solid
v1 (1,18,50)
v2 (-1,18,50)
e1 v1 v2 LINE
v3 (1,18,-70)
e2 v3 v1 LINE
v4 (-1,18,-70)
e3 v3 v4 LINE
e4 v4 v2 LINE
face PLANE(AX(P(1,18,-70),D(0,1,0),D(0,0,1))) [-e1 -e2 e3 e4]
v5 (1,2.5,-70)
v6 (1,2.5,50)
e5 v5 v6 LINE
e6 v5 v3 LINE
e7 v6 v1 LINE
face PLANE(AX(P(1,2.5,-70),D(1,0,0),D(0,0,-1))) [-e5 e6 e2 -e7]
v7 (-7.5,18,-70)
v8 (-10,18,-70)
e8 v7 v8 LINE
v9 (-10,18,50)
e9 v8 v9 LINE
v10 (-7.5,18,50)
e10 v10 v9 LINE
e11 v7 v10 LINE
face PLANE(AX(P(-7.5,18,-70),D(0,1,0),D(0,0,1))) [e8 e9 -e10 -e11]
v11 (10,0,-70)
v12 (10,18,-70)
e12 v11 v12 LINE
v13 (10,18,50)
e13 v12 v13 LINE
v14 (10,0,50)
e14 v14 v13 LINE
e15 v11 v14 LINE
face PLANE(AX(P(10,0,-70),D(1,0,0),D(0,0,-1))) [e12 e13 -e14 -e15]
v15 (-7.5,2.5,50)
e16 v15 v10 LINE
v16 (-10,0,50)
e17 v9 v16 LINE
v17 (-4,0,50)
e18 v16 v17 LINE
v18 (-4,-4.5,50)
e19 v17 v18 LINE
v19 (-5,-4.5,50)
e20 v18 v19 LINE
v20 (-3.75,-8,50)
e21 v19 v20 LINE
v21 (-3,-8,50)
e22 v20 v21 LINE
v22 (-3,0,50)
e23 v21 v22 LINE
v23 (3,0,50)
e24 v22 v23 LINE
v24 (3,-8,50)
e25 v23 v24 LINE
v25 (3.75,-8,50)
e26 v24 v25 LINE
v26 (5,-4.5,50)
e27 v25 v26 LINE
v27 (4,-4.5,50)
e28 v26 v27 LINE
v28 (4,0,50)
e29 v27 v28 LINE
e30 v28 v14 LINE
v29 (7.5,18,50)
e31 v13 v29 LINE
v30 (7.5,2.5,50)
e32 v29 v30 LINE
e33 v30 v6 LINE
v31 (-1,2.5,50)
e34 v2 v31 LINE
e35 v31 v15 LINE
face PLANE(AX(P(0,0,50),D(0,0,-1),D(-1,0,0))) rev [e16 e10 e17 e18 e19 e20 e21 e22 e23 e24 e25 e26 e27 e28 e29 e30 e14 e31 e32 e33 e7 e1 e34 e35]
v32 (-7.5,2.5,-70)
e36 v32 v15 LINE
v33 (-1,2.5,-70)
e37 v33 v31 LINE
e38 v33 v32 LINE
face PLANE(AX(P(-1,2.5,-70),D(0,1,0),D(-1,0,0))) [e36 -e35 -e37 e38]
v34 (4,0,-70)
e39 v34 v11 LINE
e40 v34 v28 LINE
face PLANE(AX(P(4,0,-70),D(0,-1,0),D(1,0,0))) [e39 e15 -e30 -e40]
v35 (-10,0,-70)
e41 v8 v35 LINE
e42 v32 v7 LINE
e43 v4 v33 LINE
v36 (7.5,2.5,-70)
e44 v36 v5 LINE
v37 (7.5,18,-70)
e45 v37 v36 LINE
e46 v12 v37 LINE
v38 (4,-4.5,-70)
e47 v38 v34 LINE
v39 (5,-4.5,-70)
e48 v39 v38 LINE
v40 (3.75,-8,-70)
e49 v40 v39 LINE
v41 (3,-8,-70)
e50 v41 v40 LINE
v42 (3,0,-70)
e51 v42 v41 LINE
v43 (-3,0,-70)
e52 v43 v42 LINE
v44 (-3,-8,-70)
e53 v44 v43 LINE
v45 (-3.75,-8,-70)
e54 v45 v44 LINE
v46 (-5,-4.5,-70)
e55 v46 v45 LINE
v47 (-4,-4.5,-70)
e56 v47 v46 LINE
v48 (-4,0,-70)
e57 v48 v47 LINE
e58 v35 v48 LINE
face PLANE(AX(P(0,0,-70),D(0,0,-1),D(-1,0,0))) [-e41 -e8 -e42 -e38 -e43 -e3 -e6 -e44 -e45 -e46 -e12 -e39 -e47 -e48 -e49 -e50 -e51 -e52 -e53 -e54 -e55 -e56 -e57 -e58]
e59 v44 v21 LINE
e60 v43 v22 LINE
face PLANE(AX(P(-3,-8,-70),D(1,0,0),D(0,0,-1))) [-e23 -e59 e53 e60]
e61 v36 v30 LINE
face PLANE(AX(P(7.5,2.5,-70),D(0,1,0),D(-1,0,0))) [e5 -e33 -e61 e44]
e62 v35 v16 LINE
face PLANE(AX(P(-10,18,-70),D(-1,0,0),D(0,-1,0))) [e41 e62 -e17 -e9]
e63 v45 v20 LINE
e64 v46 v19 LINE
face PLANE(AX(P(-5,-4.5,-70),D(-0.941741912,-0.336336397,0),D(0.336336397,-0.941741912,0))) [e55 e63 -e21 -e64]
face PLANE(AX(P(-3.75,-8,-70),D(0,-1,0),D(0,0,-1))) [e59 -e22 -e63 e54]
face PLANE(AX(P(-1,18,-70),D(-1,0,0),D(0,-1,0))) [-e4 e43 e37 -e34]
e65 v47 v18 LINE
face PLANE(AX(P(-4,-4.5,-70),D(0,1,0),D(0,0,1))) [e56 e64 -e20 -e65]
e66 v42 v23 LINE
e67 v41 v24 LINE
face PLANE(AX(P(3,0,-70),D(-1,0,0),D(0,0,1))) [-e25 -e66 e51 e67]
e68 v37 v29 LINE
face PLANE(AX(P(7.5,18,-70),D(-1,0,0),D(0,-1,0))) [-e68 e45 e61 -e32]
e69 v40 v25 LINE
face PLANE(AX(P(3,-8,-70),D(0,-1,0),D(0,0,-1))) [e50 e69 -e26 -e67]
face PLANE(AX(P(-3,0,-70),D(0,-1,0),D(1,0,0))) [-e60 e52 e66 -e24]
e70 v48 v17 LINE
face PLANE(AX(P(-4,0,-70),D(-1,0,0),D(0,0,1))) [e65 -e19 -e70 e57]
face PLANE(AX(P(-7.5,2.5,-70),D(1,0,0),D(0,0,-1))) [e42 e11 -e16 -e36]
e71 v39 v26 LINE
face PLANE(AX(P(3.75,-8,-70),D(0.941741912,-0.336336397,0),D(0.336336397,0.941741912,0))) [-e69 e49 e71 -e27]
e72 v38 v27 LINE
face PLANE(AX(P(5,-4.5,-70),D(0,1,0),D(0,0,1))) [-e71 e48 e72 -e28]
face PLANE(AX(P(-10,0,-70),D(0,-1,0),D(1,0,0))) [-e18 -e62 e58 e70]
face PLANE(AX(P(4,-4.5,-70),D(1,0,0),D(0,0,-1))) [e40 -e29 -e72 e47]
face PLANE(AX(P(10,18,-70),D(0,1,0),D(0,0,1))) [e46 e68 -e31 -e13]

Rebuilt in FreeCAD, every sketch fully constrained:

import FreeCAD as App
import Part
import Sketcher

V = App.Vector

doc = App.newDocument("Part")
body = doc.addObject("PartDesign::Body", "Body")

# Sketch on XY plane
sketch1 = body.newObject("Sketcher::SketchObject", "Sketch")
sketch1.AttachmentSupport = (doc.getObject("XY_Plane"), [""])
sketch1.MapMode = "FlatFace"
sketch1.AttachmentOffset = App.Placement(V(0, 0, 50), App.Rotation())
sketch1.addGeometry([
    Part.LineSegment(V(-1, 2.5, 0), V(-7.5, 2.5, 0)),  # 0
    Part.LineSegment(V(-7.5, 2.5, 0), V(-7.5, 18, 0)),  # 1
    Part.LineSegment(V(-7.5, 18, 0), V(-10, 18, 0)),  # 2
    Part.LineSegment(V(-10, 18, 0), V(-10, 0, 0)),  # 3
    Part.LineSegment(V(-10, 0, 0), V(-4, 0, 0)),  # 4
    Part.LineSegment(V(-4, 0, 0), V(-4, -4.5, 0)),  # 5
    Part.LineSegment(V(-4, -4.5, 0), V(-5, -4.5, 0)),  # 6
    Part.LineSegment(V(-5, -4.5, 0), V(-3.8, -8, 0)),  # 7
    Part.LineSegment(V(-3.8, -8, 0), V(-3, -8, 0)),  # 8
    Part.LineSegment(V(-3, -8, 0), V(-3, 0, 0)),  # 9
    Part.LineSegment(V(-3, 0, 0), V(3, 0, 0)),  # 10
    Part.LineSegment(V(3, 0, 0), V(3, -8, 0)),  # 11
    Part.LineSegment(V(3, -8, 0), V(3.8, -8, 0)),  # 12
    Part.LineSegment(V(3.8, -8, 0), V(5, -4.5, 0)),  # 13
    Part.LineSegment(V(5, -4.5, 0), V(4, -4.5, 0)),  # 14
    Part.LineSegment(V(4, -4.5, 0), V(4, 0, 0)),  # 15
    Part.LineSegment(V(4, 0, 0), V(10, 0, 0)),  # 16
    Part.LineSegment(V(10, 0, 0), V(10, 18, 0)),  # 17
    Part.LineSegment(V(10, 18, 0), V(7.5, 18, 0)),  # 18
    Part.LineSegment(V(7.5, 18, 0), V(7.5, 2.5, 0)),  # 19
    Part.LineSegment(V(7.5, 2.5, 0), V(1, 2.5, 0)),  # 20
    Part.LineSegment(V(1, 2.5, 0), V(1, 18, 0)),  # 21
    Part.LineSegment(V(1, 18, 0), V(-1, 18, 0)),  # 22
    Part.LineSegment(V(-1, 18, 0), V(-1, 2.5, 0)),  # 23
], False)
sketch1.addConstraint([
    Sketcher.Constraint("Coincident", 0, 2, 1, 1),
    Sketcher.Constraint("Coincident", 1, 2, 2, 1),
    Sketcher.Constraint("Coincident", 2, 2, 3, 1),
    Sketcher.Constraint("Coincident", 3, 2, 4, 1),
    Sketcher.Constraint("Coincident", 4, 2, 5, 1),
    Sketcher.Constraint("Coincident", 5, 2, 6, 1),
    Sketcher.Constraint("Coincident", 6, 2, 7, 1),
    Sketcher.Constraint("Coincident", 7, 2, 8, 1),
    Sketcher.Constraint("Coincident", 8, 2, 9, 1),
    Sketcher.Constraint("Coincident", 9, 2, 10, 1),
    Sketcher.Constraint("Coincident", 10, 2, 11, 1),
    Sketcher.Constraint("Coincident", 11, 2, 12, 1),
    Sketcher.Constraint("Coincident", 12, 2, 13, 1),
    Sketcher.Constraint("Coincident", 13, 2, 14, 1),
    Sketcher.Constraint("Coincident", 14, 2, 15, 1),
    Sketcher.Constraint("Coincident", 15, 2, 16, 1),
    Sketcher.Constraint("Coincident", 16, 2, 17, 1),
    Sketcher.Constraint("Coincident", 17, 2, 18, 1),
    Sketcher.Constraint("Coincident", 18, 2, 19, 1),
    Sketcher.Constraint("Coincident", 19, 2, 20, 1),
    Sketcher.Constraint("Coincident", 20, 2, 21, 1),
    Sketcher.Constraint("Coincident", 21, 2, 22, 1),
    Sketcher.Constraint("Coincident", 22, 2, 23, 1),
    Sketcher.Constraint("Coincident", 23, 2, 0, 1),
    Sketcher.Constraint("Horizontal", 0),
    Sketcher.Constraint("Vertical", 1),
    Sketcher.Constraint("Horizontal", 2),
    Sketcher.Constraint("Vertical", 3),
    Sketcher.Constraint("Horizontal", 4),
    Sketcher.Constraint("Vertical", 5),
    Sketcher.Constraint("Horizontal", 6),
    Sketcher.Constraint("Horizontal", 8),
    Sketcher.Constraint("Vertical", 9),
    Sketcher.Constraint("Horizontal", 10),
    Sketcher.Constraint("Vertical", 11),
    Sketcher.Constraint("Horizontal", 12),
    Sketcher.Constraint("Horizontal", 14),
    Sketcher.Constraint("Vertical", 15),
    Sketcher.Constraint("Horizontal", 16),
    Sketcher.Constraint("Vertical", 17),
    Sketcher.Constraint("Horizontal", 18),
    Sketcher.Constraint("Vertical", 19),
    Sketcher.Constraint("Horizontal", 20),
    Sketcher.Constraint("Vertical", 21),
    Sketcher.Constraint("Horizontal", 22),
    Sketcher.Constraint("Vertical", 23),
    Sketcher.Constraint("Symmetric", 9, 2, 10, 2, -1, 1),
    Sketcher.Constraint("Symmetric", 4, 2, 15, 2, -1, 1),
    Sketcher.Constraint("Symmetric", 7, 2, 12, 2, -2),
    Sketcher.Constraint("Symmetric", 6, 2, 13, 2, -2),
    Sketcher.Constraint("Symmetric", 3, 2, 16, 2, -2),
    Sketcher.Constraint("Symmetric", 1, 2, 18, 2, -2),
    Sketcher.Constraint("Symmetric", 20, 2, 23, 2, -2),
    Sketcher.Constraint("Horizontal", 18, 2, 21, 2),
    Sketcher.Constraint("Equal", 4, 10),
    Sketcher.Constraint("DistanceX", 4, 1, 4, 2, 6.0),
    Sketcher.Constraint("DistanceX", 6, 2, 6, 1, 1.0),
    Sketcher.Constraint("DistanceX", 22, 2, 22, 1, 2.0),
    Sketcher.Constraint("DistanceY", 3, 2, 3, 1, 18.0),
    Sketcher.Constraint("DistanceY", 9, 1, 9, 2, 8.0),
    Sketcher.Constraint("DistanceX", 0, 2, 0, 1, 6.5),
    Sketcher.Constraint("DistanceX", 2, 2, 2, 1, 2.5),
    Sketcher.Constraint("DistanceY", 1, 1, 1, 2, 15.5),
    Sketcher.Constraint("DistanceY", 5, 2, 5, 1, 4.5),
    Sketcher.Constraint("DistanceX", 8, 1, 8, 2, 0.75),
])
pad1 = body.newObject("PartDesign::Pad", "Pad")
pad1.Profile = sketch1
pad1.Length = 120
pad1.Reversed = True

doc.recompute()
